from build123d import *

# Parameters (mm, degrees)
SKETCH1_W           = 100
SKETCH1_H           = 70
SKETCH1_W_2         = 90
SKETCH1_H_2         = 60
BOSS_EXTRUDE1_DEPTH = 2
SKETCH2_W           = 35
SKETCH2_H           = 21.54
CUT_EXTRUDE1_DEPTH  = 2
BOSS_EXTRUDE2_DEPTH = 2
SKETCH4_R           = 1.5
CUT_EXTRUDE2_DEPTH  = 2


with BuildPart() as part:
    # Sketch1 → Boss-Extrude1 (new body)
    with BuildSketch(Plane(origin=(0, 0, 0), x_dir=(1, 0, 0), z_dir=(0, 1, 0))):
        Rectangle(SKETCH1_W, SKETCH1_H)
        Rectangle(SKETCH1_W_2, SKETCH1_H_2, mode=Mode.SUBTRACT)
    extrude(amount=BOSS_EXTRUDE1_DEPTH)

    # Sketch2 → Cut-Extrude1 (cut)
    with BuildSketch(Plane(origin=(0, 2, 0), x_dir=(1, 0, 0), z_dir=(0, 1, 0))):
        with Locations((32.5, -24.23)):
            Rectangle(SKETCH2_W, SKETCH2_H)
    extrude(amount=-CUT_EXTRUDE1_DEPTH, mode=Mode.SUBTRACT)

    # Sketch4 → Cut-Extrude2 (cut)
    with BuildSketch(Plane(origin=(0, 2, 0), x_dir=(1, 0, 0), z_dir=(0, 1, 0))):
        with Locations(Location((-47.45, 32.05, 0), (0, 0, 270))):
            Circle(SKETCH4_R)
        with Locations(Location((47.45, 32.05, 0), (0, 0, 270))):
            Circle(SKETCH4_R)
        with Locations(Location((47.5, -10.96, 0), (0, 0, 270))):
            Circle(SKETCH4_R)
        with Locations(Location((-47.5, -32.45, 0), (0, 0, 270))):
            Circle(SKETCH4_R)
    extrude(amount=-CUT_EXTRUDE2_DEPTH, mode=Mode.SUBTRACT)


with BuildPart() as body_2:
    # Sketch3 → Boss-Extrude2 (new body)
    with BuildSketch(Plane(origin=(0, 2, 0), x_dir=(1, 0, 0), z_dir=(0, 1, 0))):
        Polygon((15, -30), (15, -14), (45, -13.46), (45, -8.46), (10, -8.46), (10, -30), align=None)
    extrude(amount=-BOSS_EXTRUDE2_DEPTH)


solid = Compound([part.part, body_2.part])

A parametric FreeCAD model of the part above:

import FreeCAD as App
import Part
import Sketcher
from FreeCAD import Vector
Q = App.Units.Quantity

doc = App.newDocument("Part")
body = doc.addObject("PartDesign::Body", "Body")

# Sketch on XZ plane
sketch1 = body.newObject("Sketcher::SketchObject", "Sketch")
sketch1.AttachmentSupport = (doc.getObject("XZ_Plane"), [""])
sketch1.MapMode = "FlatFace"
sketch1.addGeometry([
    Part.LineSegment(Vector(-50, -35, 0), Vector(-50, 35, 0)),  # 0
    Part.LineSegment(Vector(-50, 35, 0), Vector(50, 35, 0)),  # 1
    Part.LineSegment(Vector(50, 35, 0), Vector(50, -35, 0)),  # 2
    Part.LineSegment(Vector(50, -35, 0), Vector(-50, -35, 0)),  # 3
    Part.LineSegment(Vector(45, 30, 0), Vector(-45, 30, 0)),  # 4
    Part.LineSegment(Vector(-45, 30, 0), Vector(-45, -30, 0)),  # 5
    Part.LineSegment(Vector(-45, -30, 0), Vector(45, -30, 0)),  # 6
    Part.LineSegment(Vector(45, -30, 0), Vector(45, 30, 0)),  # 7
], False)
sketch1.addConstraint([
    Sketcher.Constraint("Coincident", 0, 2, 1, 1),
    Sketcher.Constraint("Coincident", 1, 2, 2, 1),
    Sketcher.Constraint("Coincident", 2, 2, 3, 1),
    Sketcher.Constraint("Coincident", 3, 2, 0, 1),
    Sketcher.Constraint("Coincident", 4, 2, 5, 1),
    Sketcher.Constraint("Coincident", 5, 2, 6, 1),
    Sketcher.Constraint("Coincident", 6, 2, 7, 1),
    Sketcher.Constraint("Coincident", 7, 2, 4, 1),
    Sketcher.Constraint("Vertical", 0),
    Sketcher.Constraint("Horizontal", 1),
    Sketcher.Constraint("Vertical", 2),
    Sketcher.Constraint("Horizontal", 3),
    Sketcher.Constraint("Horizontal", 4),
    Sketcher.Constraint("Vertical", 5),
    Sketcher.Constraint("Horizontal", 6),
    Sketcher.Constraint("Vertical", 7),
    Sketcher.Constraint("Symmetric", 0, 2, 2, 2, -1, 1),
    Sketcher.Constraint("Symmetric", 4, 2, 6, 2, -1, 1),
    Sketcher.Constraint("DistanceX", 1, 1, 1, 2, Q("100 mm")),
    Sketcher.Constraint("DistanceX", 4, 2, 4, 1, Q("90 mm")),
    Sketcher.Constraint("DistanceY", 0, 1, 0, 2, Q("70 mm")),
    Sketcher.Constraint("DistanceY", 5, 2, 5, 1, Q("60 mm")),
])
pad1 = body.newObject("PartDesign::Pad", "Pad")
pad1.Profile = sketch1
pad1.Length = 2
pad1.Reversed = True

# Sketch on XZ plane
sketch2 = body.newObject("Sketcher::SketchObject", "Sketch001")
sketch2.AttachmentSupport = (doc.getObject("XZ_Plane"), [""])
sketch2.MapMode = "FlatFace"
sketch2.AttachmentOffset = App.Placement(Vector(0, 0, -2), App.Rotation())
sketch2.addGeometry([
    Part.LineSegment(Vector(15, 13.46, 0), Vector(15, 35, 0)),
    Part.LineSegment(Vector(15, 35, 0), Vector(50, 35, 0)),
    Part.LineSegment(Vector(50, 35, 0), Vector(50, 13.46, 0)),
    Part.LineSegment(Vector(50, 13.46, 0), Vector(15, 13.46, 0)),
], False)
sketch2.addConstraint([
    Sketcher.Constraint("Coincident", 0, 2, 1, 1),
    Sketcher.Constraint("Coincident", 1, 2, 2, 1),
    Sketcher.Constraint("Coincident", 2, 2, 3, 1),
    Sketcher.Constraint("Coincident", 3, 2, 0, 1),
    Sketcher.Constraint("Vertical", 0),
    Sketcher.Constraint("Horizontal", 1),
    Sketcher.Constraint("Vertical", 2),
    Sketcher.Constraint("Horizontal", 3),
    Sketcher.Constraint("DistanceX", 1, 1, 1, 2, Q("35 mm")),
    Sketcher.Constraint("DistanceX", -1, 1, 0, 2, Q("15 mm")),
    Sketcher.Constraint("DistanceY", -1, 1, 0, 2, Q("35 mm")),
    Sketcher.Constraint("DistanceY", 0, 1, 0, 2, Q("21.54 mm")),
])
pocket1 = body.newObject("PartDesign::Pocket", "Pocket")
pocket1.Profile = sketch2
pocket1.Length = 2
pocket1.Reversed = True

# Sketch on XZ plane
sketch3 = body.newObject("Sketcher::SketchObject", "Sketch002")
sketch3.AttachmentSupport = (doc.getObject("XZ_Plane"), [""])
sketch3.MapMode = "FlatFace"
sketch3.AttachmentOffset = App.Placement(Vector(0, 0, -2), App.Rotation())
sketch3.addGeometry([
    Part.Circle(Vector(-47.45, -32.05, 0), Vector(0, 0, 1), 1.5),
    Part.Circle(Vector(47.45, -32.05, 0), Vector(0, 0, 1), 1.5),
    Part.Circle(Vector(47.5, 10.96, 0), Vector(0, 0, 1), 1.5),
    Part.Circle(Vector(-47.5, 32.45, 0), Vector(0, 0, 1), 1.5),
], False)
sketch3.addConstraint([
    Sketcher.Constraint("Equal", 0, 1),
    Sketcher.Constraint("Equal", 1, 2),
    Sketcher.Constraint("Equal", 2, 3),
    Sketcher.Constraint("Symmetric", 0, 3, 1, 3, -2),
    Sketcher.Constraint("Diameter", 0, Q("3 mm")),
    Sketcher.Constraint("DistanceX", 3, 3, 2, 3, Q("95 mm")),
    Sketcher.Constraint("DistanceX", -1, 1, 2, 3, Q("47.5 mm")),
    Sketcher.Constraint("DistanceX", 0, 3, 1, 3, Q("94.9 mm")),
    Sketcher.Constraint("DistanceY", 0, 3, 3, 3, Q("64.5 mm")),
    Sketcher.Constraint("DistanceY", 0, 3, -1, 1, Q("32.05 mm")),
    Sketcher.Constraint("DistanceY", -1, 1, 2, 3, Q("10.96 mm")),
])
pocket2 = body.newObject("PartDesign::Pocket", "Pocket001")
pocket2.Profile = sketch3
pocket2.Length = 2
pocket2.Reversed = True
body2 = doc.addObject("PartDesign::Body", "Body001")

# Sketch on XZ plane
sketch4 = body2.newObject("Sketcher::SketchObject", "Sketch003")
sketch4.AttachmentSupport = (doc.getObject("XZ_Plane001"), [""])
sketch4.MapMode = "FlatFace"
sketch4.AttachmentOffset = App.Placement(Vector(0, 0, -2), App.Rotation())
sketch4.addGeometry([
    Part.LineSegment(Vector(15, 30, 0), Vector(15, 14, 0)),  # 0
    Part.LineSegment(Vector(15, 14, 0), Vector(45, 13.46, 0)),  # 1
    Part.LineSegment(Vector(45, 13.46, 0), Vector(45, 8.46, 0)),  # 2
    Part.LineSegment(Vector(45, 8.46, 0), Vector(10, 8.46, 0)),  # 3
    Part.LineSegment(Vector(10, 8.46, 0), Vector(10, 30, 0)),  # 4
    Part.LineSegment(Vector(10, 30, 0), Vector(15, 30, 0)),  # 5
], False)
sketch4.addConstraint([
    Sketcher.Constraint("Coincident", 0, 2, 1, 1),
    Sketcher.Constraint("Coincident", 1, 2, 2, 1),
    Sketcher.Constraint("Coincident", 2, 2, 3, 1),
    Sketcher.Constraint("Coincident", 3, 2, 4, 1),
    Sketcher.Constraint("Coincident", 4, 2, 5, 1),
    Sketcher.Constraint("Coincident", 5, 2, 0, 1),
    Sketcher.Constraint("Vertical", 0),
    Sketcher.Constraint("Vertical", 2),
    Sketcher.Constraint("Horizontal", 3),
    Sketcher.Constraint("Vertical", 4),
    Sketcher.Constraint("Horizontal", 5),
    Sketcher.Constraint("Equal", 5, 2),
    Sketcher.Constraint("DistanceX", 3, 2, 3, 1, Q("35 mm")),
    Sketcher.Constraint("DistanceX", 5, 1, 5, 2, Q("5 mm")),
    Sketcher.Constraint("DistanceY", 0, 2, 0, 1, Q("16 mm")),
    Sketcher.Constraint("DistanceX", -1, 1, 0, 2, Q("15 mm")),
    Sketcher.Constraint("DistanceY", -1, 1, 0, 2, Q("14 mm")),
    Sketcher.Constraint("DistanceY", 4, 1, 4, 2, Q("21.54 mm")),
])
pad2 = body2.newObject("PartDesign::Pad", "Pad001")
pad2.Profile = sketch4
pad2.Length = 2

doc.recompute()
